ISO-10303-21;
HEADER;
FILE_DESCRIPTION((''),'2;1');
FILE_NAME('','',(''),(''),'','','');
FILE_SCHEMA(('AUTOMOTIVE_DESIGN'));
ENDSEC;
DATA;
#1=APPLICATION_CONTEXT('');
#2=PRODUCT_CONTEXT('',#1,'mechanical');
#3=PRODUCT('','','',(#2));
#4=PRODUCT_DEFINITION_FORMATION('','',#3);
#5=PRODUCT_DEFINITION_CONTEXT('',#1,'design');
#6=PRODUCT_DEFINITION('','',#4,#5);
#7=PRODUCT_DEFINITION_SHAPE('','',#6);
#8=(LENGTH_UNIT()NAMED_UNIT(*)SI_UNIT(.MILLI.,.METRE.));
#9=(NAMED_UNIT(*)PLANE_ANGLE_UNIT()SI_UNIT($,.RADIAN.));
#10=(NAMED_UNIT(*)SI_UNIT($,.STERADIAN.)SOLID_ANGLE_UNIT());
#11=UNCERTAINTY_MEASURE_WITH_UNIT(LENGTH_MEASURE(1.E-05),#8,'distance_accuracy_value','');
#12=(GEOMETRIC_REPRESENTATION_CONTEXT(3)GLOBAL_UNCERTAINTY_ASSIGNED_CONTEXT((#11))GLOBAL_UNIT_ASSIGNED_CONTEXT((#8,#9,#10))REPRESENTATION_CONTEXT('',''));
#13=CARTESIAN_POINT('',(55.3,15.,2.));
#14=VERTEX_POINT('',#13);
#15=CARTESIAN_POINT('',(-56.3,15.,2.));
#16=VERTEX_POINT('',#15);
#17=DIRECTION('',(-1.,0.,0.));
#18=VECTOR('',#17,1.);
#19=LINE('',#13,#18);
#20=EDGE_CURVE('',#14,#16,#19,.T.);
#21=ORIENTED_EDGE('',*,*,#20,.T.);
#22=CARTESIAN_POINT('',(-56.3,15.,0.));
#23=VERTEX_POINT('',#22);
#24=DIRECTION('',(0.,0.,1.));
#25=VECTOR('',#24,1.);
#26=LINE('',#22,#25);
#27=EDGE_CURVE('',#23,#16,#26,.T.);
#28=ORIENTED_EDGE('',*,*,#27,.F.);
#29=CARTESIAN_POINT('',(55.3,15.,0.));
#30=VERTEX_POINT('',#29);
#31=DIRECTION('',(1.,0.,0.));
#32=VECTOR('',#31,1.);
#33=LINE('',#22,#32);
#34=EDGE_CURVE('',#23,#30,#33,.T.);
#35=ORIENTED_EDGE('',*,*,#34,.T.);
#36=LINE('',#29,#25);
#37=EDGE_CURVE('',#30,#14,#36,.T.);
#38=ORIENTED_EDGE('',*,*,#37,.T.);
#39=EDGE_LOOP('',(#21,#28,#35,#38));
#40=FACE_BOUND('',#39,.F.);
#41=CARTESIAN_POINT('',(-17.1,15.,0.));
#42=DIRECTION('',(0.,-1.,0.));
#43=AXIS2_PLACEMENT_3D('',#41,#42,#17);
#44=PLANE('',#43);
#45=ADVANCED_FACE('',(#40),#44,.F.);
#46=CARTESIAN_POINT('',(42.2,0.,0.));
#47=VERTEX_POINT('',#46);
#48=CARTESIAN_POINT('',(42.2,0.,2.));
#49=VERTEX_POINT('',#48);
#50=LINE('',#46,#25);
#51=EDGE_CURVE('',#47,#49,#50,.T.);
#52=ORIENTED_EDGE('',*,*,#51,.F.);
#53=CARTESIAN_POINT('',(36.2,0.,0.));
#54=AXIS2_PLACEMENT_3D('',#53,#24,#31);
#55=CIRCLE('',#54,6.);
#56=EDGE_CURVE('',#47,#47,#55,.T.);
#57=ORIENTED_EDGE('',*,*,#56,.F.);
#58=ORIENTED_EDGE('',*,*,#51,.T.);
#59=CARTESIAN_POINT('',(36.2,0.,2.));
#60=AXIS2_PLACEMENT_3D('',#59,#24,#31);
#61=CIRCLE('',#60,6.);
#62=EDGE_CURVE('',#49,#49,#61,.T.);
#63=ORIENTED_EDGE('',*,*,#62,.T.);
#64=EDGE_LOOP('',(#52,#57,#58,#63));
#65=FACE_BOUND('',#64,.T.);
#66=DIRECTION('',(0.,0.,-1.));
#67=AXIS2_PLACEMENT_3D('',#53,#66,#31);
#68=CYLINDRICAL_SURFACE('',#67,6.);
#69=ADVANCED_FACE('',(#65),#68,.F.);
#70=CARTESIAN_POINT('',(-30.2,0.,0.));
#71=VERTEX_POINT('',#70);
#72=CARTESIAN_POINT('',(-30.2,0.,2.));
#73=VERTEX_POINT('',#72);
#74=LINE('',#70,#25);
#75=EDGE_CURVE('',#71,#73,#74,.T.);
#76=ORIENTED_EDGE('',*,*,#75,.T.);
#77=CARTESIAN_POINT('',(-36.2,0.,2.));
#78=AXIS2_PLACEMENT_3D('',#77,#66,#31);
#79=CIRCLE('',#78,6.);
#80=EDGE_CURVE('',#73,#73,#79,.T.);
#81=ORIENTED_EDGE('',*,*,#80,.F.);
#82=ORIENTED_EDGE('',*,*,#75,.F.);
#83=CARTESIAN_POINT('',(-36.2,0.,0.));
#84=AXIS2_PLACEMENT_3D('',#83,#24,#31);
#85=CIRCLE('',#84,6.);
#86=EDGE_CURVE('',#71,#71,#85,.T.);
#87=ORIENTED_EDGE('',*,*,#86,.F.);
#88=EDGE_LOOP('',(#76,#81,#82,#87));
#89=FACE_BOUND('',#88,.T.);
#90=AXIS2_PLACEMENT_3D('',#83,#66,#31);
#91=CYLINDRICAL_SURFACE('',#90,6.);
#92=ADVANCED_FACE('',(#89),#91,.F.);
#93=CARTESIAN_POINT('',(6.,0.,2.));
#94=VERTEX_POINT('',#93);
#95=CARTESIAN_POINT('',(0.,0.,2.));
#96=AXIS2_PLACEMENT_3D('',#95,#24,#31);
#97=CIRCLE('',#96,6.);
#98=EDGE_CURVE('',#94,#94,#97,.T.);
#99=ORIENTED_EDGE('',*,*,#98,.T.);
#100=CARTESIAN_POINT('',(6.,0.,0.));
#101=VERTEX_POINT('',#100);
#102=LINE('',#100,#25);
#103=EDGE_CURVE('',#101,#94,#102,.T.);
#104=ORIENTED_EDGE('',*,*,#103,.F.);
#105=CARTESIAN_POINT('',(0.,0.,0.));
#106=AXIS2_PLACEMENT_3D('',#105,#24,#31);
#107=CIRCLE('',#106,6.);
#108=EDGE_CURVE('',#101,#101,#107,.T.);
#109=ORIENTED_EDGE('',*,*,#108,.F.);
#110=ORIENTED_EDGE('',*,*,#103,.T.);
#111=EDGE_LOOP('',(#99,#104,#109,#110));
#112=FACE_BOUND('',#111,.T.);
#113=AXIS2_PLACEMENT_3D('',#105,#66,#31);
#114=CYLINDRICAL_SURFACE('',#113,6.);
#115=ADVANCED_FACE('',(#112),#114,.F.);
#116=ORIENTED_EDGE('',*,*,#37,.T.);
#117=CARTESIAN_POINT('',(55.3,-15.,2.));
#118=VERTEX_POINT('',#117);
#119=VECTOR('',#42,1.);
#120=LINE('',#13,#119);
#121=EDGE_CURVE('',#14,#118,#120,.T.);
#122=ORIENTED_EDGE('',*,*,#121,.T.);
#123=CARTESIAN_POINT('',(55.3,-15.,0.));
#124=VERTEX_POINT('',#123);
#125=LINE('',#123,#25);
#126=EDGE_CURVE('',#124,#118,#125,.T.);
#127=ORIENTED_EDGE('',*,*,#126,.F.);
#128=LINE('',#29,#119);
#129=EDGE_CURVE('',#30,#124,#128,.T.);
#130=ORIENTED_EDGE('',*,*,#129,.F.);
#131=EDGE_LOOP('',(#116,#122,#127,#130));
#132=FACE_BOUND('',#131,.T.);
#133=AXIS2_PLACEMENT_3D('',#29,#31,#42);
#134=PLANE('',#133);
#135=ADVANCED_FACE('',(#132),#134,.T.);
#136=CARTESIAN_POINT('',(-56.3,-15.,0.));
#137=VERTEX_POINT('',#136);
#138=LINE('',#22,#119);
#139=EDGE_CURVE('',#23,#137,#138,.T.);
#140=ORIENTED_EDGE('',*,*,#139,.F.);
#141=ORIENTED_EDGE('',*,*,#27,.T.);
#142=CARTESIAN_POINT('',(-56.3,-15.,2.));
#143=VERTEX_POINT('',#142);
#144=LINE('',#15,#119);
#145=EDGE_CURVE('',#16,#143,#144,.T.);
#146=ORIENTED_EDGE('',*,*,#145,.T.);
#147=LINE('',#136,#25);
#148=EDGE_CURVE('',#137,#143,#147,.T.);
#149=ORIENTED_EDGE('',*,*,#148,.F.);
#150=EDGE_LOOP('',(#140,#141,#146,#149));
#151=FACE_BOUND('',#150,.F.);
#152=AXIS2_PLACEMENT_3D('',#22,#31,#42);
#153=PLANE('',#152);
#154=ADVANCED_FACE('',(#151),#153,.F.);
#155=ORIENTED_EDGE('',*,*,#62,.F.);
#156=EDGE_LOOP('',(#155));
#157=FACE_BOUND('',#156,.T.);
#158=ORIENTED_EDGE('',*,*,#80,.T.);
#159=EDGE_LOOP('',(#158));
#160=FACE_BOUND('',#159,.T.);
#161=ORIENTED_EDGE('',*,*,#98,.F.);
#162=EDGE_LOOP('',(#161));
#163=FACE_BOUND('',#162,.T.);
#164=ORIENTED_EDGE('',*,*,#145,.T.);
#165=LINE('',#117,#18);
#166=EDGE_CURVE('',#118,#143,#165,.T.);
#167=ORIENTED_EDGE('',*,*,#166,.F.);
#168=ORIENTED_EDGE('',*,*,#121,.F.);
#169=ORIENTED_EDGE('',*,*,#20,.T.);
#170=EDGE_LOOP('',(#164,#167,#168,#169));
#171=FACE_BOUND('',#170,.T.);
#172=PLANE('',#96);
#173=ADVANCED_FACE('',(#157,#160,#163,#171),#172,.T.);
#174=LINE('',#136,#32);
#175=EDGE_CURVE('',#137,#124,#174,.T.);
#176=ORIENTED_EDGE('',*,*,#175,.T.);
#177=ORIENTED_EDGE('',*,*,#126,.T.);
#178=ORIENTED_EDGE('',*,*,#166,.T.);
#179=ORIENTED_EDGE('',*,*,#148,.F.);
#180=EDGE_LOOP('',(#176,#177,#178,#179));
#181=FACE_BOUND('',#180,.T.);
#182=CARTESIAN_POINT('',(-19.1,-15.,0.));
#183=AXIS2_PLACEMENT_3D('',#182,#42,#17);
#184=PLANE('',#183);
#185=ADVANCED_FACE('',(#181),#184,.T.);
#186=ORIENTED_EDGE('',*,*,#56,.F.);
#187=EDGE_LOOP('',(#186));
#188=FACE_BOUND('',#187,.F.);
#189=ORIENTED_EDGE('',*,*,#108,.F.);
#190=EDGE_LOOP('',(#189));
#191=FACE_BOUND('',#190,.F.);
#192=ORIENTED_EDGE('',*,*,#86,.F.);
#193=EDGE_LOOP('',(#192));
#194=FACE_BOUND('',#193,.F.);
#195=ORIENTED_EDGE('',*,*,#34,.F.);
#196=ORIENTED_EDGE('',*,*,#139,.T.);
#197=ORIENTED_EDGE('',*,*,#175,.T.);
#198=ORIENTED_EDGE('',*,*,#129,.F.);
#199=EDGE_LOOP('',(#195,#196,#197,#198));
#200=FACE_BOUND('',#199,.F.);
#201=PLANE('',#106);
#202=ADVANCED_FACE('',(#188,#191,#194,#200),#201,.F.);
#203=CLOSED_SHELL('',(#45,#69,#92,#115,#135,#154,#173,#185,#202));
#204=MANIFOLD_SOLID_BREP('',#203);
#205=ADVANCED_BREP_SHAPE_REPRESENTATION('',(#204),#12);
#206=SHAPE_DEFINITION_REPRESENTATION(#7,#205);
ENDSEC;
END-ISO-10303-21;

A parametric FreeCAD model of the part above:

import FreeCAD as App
import Part
import Sketcher

doc = App.newDocument("Part")
body = doc.addObject("PartDesign::Body", "Body")

# Sketch on XY plane
sketch1 = body.newObject("Sketcher::SketchObject", "Sketch")
sketch1.AttachmentSupport = (doc.getObject("XY_Plane"), [""])
sketch1.MapMode = "FlatFace"
sketch1.addGeometry([
    Part.LineSegment(App.Vector(55, -15, 0), App.Vector(55, 15, 0)),  # 0
    Part.LineSegment(App.Vector(55, 15, 0), App.Vector(-56, 15, 0)),  # 1
    Part.LineSegment(App.Vector(-56, 15, 0), App.Vector(-56, -15, 0)),  # 2
    Part.LineSegment(App.Vector(-56, -15, 0), App.Vector(55, -15, 0)),  # 3
    Part.Circle(App.Vector(-36, 0, 0), App.Vector(0, 0, 1), 6),  # 4
    Part.Circle(App.Vector(0, 0, 0), App.Vector(0, 0, 1), 6),  # 5
    Part.Circle(App.Vector(36, 0, 0), App.Vector(0, 0, 1), 6),  # 6
], False)
sketch1.addConstraint([
    Sketcher.Constraint("Coincident", 0, 2, 1, 1),
    Sketcher.Constraint("Coincident", 1, 2, 2, 1),
    Sketcher.Constraint("Coincident", 2, 2, 3, 1),
    Sketcher.Constraint("Coincident", 3, 2, 0, 1),
    Sketcher.Constraint("Vertical", 0),
    Sketcher.Constraint("Horizontal", 1),
    Sketcher.Constraint("Vertical", 2),
    Sketcher.Constraint("Horizontal", 3),
    Sketcher.Constraint("Coincident", 5, 3, -1, 1),
    Sketcher.Constraint("Equal", 4, 5),
    Sketcher.Constraint("Equal", 5, 6),
    Sketcher.Constraint("Symmetric", 4, 3, 6, 3, -1, 1),
    Sketcher.Constraint("PointOnObject", 4, 3, -1),
    Sketcher.Constraint("DistanceY", 0, 1, 0, 2, 30.0),
    Sketcher.Constraint("Diameter", 4, 12.0),
    Sketcher.Constraint("DistanceX", 1, 2, 1, 1, 111.6),
    Sketcher.Constraint("DistanceY", -1, 1, 0, 2, 15.0),
    Sketcher.Constraint("DistanceX", 4, 3, -1, 1, 36.2),
    Sketcher.Constraint("DistanceX", -1, 1, 0, 2, 55.3),
])
pad1 = body.newObject("PartDesign::Pad", "Pad")
pad1.Profile = sketch1
pad1.Length = 2

doc.recompute()
